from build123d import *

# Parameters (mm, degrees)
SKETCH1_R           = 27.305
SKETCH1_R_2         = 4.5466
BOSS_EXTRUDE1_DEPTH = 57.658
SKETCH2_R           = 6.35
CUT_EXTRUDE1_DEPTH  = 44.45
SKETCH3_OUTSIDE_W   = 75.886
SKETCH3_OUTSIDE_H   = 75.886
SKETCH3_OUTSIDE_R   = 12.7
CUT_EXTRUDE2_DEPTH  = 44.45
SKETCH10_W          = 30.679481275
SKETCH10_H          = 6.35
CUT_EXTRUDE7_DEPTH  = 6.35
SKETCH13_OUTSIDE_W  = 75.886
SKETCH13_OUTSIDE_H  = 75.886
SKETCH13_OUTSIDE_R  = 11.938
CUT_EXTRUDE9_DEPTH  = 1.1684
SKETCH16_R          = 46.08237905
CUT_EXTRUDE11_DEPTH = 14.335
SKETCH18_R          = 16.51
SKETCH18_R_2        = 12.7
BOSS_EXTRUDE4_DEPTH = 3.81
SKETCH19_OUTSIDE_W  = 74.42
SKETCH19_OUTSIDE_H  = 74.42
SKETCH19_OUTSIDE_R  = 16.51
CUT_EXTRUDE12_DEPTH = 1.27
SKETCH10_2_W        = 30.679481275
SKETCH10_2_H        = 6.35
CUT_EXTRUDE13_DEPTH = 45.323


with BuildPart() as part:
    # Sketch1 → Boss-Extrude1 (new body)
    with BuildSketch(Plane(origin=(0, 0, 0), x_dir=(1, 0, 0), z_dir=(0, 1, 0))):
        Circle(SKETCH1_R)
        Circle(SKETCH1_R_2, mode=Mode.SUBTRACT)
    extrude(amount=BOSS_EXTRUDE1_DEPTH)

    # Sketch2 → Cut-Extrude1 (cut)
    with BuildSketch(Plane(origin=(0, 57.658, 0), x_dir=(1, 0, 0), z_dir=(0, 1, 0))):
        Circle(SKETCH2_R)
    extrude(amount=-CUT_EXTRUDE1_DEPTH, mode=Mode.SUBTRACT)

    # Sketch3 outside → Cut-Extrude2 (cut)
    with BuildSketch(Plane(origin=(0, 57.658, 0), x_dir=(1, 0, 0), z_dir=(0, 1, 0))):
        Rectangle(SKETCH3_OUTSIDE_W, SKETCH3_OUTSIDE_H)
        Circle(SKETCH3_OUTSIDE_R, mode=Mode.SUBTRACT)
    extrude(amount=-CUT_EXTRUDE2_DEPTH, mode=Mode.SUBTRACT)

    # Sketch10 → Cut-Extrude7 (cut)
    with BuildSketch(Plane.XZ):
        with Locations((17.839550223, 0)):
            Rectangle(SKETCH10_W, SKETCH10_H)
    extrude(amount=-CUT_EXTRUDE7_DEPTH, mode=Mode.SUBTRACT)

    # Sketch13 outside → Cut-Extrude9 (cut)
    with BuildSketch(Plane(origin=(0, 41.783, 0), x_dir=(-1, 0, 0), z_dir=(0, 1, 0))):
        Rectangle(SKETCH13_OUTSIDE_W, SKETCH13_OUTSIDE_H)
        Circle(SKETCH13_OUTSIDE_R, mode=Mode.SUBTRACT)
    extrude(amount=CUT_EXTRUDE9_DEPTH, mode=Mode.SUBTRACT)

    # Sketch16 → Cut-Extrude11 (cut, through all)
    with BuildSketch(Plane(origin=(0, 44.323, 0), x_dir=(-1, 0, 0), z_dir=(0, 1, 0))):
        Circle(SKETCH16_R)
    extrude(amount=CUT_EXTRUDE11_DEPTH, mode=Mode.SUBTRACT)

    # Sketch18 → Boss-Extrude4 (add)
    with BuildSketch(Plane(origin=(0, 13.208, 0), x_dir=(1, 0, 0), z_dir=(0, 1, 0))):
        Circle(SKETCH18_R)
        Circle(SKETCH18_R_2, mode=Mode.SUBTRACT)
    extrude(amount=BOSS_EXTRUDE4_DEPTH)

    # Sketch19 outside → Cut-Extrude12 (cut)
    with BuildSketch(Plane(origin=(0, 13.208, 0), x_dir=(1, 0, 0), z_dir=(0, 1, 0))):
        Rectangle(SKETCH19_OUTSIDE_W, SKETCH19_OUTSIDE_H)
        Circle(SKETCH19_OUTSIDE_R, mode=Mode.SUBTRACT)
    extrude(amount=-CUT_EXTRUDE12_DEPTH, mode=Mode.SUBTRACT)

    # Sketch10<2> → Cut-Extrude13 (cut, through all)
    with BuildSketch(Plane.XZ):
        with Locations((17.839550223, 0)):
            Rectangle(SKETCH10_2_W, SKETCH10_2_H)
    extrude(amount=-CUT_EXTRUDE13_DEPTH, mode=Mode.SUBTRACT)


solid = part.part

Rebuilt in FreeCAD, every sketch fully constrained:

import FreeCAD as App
import Part
import Sketcher
Q = App.Units.Quantity


def add_polygon(sketch, points):
    """Adds a closed chain of lines whose ends are joined by coincident constraints."""
    first, n = sketch.GeometryCount, len(points)
    for a, b in zip(points, points[1:] + points[:1]):
        sketch.addGeometry(Part.LineSegment(App.Vector(*a, 0), App.Vector(*b, 0)), False)
    for i in range(n):
        sketch.addConstraint(Sketcher.Constraint("Coincident", first + i, 2, first + (i + 1) % n, 1))

doc = App.newDocument("Part")
params = doc.addObject("Spreadsheet::Sheet", "Params")
for row, (alias, value) in enumerate([
    ("sketch1_diameter", "2.15 in"),
    ("sketch1_diameter2", "0.358 in"),
    ("pad1_length", "2.27 in"),
    ("sketch2_diameter", "0.5 in"),
    ("pocket1_length", "1.75 in"),
    ("sketch3_diameter", "1 in"),
    ("pocket2_length", "1.75 in"),
    ("sketch4_height", "0.25 in"),
    ("pocket3_length", "0.25 in"),
    ("sketch5_diameter", "0.94 in"),
    ("pocket4_length", "0.046 in"),
    ("sketch7_diameter", "1 in"),
    ("sketch7_diameter2", "1.3 in"),
    ("pad2_length", "0.15 in"),
    ("sketch8_diameter", "1.3 in"),
    ("pocket6_length", "0.05 in"),
    ("sketch9_height", "0.25 in"),
], start=1):
    params.set(f"A{row}", alias)
    params.set(f"B{row}", "=" + value)
    params.setAlias(f"B{row}", alias)

body = doc.addObject("PartDesign::Body", "Body")

# Sketch on XZ plane
sketch1 = body.newObject("Sketcher::SketchObject", "Sketch")
sketch1.AttachmentSupport = (doc.getObject("XZ_Plane"), [""])
sketch1.MapMode = "FlatFace"
sketch1.addGeometry(Part.Circle(App.Vector(0, 0, 0), App.Vector(0, 0, 1), 27.305), False)
sketch1.addGeometry(Part.Circle(App.Vector(0, 0, 0), App.Vector(0, 0, 1), 4.5466), False)
sketch1.addConstraint(Sketcher.Constraint("Coincident", 0, 3, -1, 1))
sketch1.addConstraint(Sketcher.Constraint("Coincident", 1, 3, -1, 1))
sketch1.addConstraint(Sketcher.Constraint("Diameter", 0, Q("2.15 in")))
sketch1.addConstraint(Sketcher.Constraint("Diameter", 1, Q("0.358 in")))
sketch1.setExpression("Constraints[2]", "Params.sketch1_diameter")
sketch1.setExpression("Constraints[3]", "Params.sketch1_diameter2")
pad1 = body.newObject("PartDesign::Pad", "Pad")
pad1.Profile = sketch1
pad1.setExpression("Length", "Params.pad1_length")
pad1.Reversed = True

# Sketch on XZ plane
sketch2 = body.newObject("Sketcher::SketchObject", "Sketch001")
sketch2.AttachmentSupport = (doc.getObject("XZ_Plane"), [""])
sketch2.MapMode = "FlatFace"
sketch2.AttachmentOffset = App.Placement(App.Vector(0, 0, -2.27 * 25.4), App.Rotation())
sketch2.addGeometry(Part.Circle(App.Vector(0, 0, 0), App.Vector(0, 0, 1), 6.35), False)
sketch2.addConstraint(Sketcher.Constraint("Coincident", 0, 3, -1, 1))
sketch2.addConstraint(Sketcher.Constraint("Diameter", 0, Q("0.5 in")))
sketch2.setExpression("Constraints[1]", "Params.sketch2_diameter")
pocket1 = body.newObject("PartDesign::Pocket", "Pocket")
pocket1.Profile = sketch2
pocket1.setExpression("Length", "Params.pocket1_length")
pocket1.Reversed = True

# Sketch on XZ plane
sketch3 = body.newObject("Sketcher::SketchObject", "Sketch002")
sketch3.AttachmentSupport = (doc.getObject("XZ_Plane"), [""])
sketch3.MapMode = "FlatFace"
sketch3.AttachmentOffset = App.Placement(App.Vector(0, 0, -2.27 * 25.4), App.Rotation())
add_polygon(sketch3, [(-37.943, -37.943), (-37.943, 37.943), (37.943, 37.943), (37.943, -37.943)])  # lines 0-3
sketch3.addGeometry(Part.Circle(App.Vector(0, 0, 0), App.Vector(0, 0, 1), 12.7), False)  # 4
sketch3.addConstraint(Sketcher.Constraint("Vertical", 0))
sketch3.addConstraint(Sketcher.Constraint("Horizontal", 1))
sketch3.addConstraint(Sketcher.Constraint("Vertical", 2))
sketch3.addConstraint(Sketcher.Constraint("Horizontal", 3))
sketch3.addConstraint(Sketcher.Constraint("Coincident", 4, 3, -1, 1))
sketch3.addConstraint(Sketcher.Constraint("Symmetric", 0, 2, 2, 2, -1, 1))
sketch3.addConstraint(Sketcher.Constraint("Equal", 3, 0))
sketch3.addConstraint(Sketcher.Constraint("Diameter", 4, Q("1 in")))
sketch3.addConstraint(Sketcher.Constraint("DistanceX", 1, 1, 1, 2, Q("75.886 mm")))
sketch3.setExpression("Constraints[11]", "Params.sketch3_diameter")
pocket2 = body.newObject("PartDesign::Pocket", "Pocket001")
pocket2.Profile = sketch3
pocket2.setExpression("Length", "Params.pocket2_length")
pocket2.Reversed = True

# Sketch on XZ plane
sketch4 = body.newObject("Sketcher::SketchObject", "Sketch003")
sketch4.AttachmentSupport = (doc.getObject("XZ_Plane"), [""])
sketch4.MapMode = "FlatFace"
add_polygon(sketch4, [(2.49981, 3.175), (2.49981, -3.175), (33.179291, -3.175), (33.179291, 3.175)])  # lines 0-3
sketch4.addConstraint(Sketcher.Constraint("Vertical", 0))
sketch4.addConstraint(Sketcher.Constraint("Horizontal", 1))
sketch4.addConstraint(Sketcher.Constraint("Vertical", 2))
sketch4.addConstraint(Sketcher.Constraint("Horizontal", 3))
sketch4.addConstraint(Sketcher.Constraint("DistanceY", 0, 2, 0, 1, Q("0.25 in")))
sketch4.addConstraint(Sketcher.Constraint("DistanceY", 0, 2, -1, 1, Q("0.125 in")))
sketch4.addConstraint(Sketcher.Constraint("DistanceX", 1, 1, 1, 2, Q("30.679481 mm")))
sketch4.addConstraint(Sketcher.Constraint("DistanceX", -1, 1, 0, 2, Q("2.49981 mm")))
sketch4.setExpression("Constraints[8]", "Params.sketch4_height")
pocket3 = body.newObject("PartDesign::Pocket", "Pocket002")
pocket3.Profile = sketch4
pocket3.setExpression("Length", "Params.pocket3_length")

# Sketch on XZ plane
sketch5 = body.newObject("Sketcher::SketchObject", "Sketch004")
sketch5.AttachmentSupport = (doc.getObject("XZ_Plane"), [""])
sketch5.MapMode = "FlatFace"
sketch5.AttachmentOffset = App.Placement(App.Vector(0, 0, -1.645 * 25.4), App.Rotation())
add_polygon(sketch5, [(37.943, 37.943), (37.943, -37.943), (-37.943, -37.943), (-37.943, 37.943)])  # lines 0-3
sketch5.addGeometry(Part.Circle(App.Vector(0, 0, 0), App.Vector(0, 0, 1), 11.938), False)  # 4
sketch5.addConstraint(Sketcher.Constraint("Vertical", 0))
sketch5.addConstraint(Sketcher.Constraint("Horizontal", 1))
sketch5.addConstraint(Sketcher.Constraint("Vertical", 2))
sketch5.addConstraint(Sketcher.Constraint("Horizontal", 3))
sketch5.addConstraint(Sketcher.Constraint("Coincident", 4, 3, -1, 1))
sketch5.addConstraint(Sketcher.Constraint("Symmetric", 0, 2, 2, 2, -1, 1))
sketch5.addConstraint(Sketcher.Constraint("Equal", 3, 0))
sketch5.addConstraint(Sketcher.Constraint("Diameter", 4, Q("0.94 in")))
sketch5.addConstraint(Sketcher.Constraint("DistanceX", 1, 2, 1, 1, Q("75.886 mm")))
sketch5.setExpression("Constraints[11]", "Params.sketch5_diameter")
pocket4 = body.newObject("PartDesign::Pocket", "Pocket003")
pocket4.Profile = sketch5
pocket4.setExpression("Length", "Params.pocket4_length")

# Sketch on XZ plane
sketch6 = body.newObject("Sketcher::SketchObject", "Sketch005")
sketch6.AttachmentSupport = (doc.getObject("XZ_Plane"), [""])
sketch6.MapMode = "FlatFace"
sketch6.AttachmentOffset = App.Placement(App.Vector(0, 0, -1.745 * 25.4), App.Rotation())
sketch6.addGeometry(Part.Circle(App.Vector(0, 0, 0), App.Vector(0, 0, 1), 46.082379), False)
sketch6.addConstraint(Sketcher.Constraint("Coincident", 0, 3, -1, 1))
sketch6.addConstraint(Sketcher.Constraint("Diameter", 0, Q("92.164758 mm")))
pocket5 = body.newObject("PartDesign::Pocket", "Pocket004")
pocket5.Profile = sketch6
pocket5.Type = "ThroughAll"

# Sketch on XZ plane
sketch7 = body.newObject("Sketcher::SketchObject", "Sketch006")
sketch7.AttachmentSupport = (doc.getObject("XZ_Plane"), [""])
sketch7.MapMode = "FlatFace"
sketch7.AttachmentOffset = App.Placement(App.Vector(0, 0, -0.52 * 25.4), App.Rotation())
sketch7.addGeometry(Part.Circle(App.Vector(0, 0, 0), App.Vector(0, 0, 1), 16.51), False)
sketch7.addGeometry(Part.Circle(App.Vector(0, 0, 0), App.Vector(0, 0, 1), 12.7), False)
sketch7.addConstraint(Sketcher.Constraint("Coincident", 0, 3, -1, 1))
sketch7.addConstraint(Sketcher.Constraint("Coincident", 1, 3, -1, 1))
sketch7.addConstraint(Sketcher.Constraint("Diameter", 1, Q("1 in")))
sketch7.addConstraint(Sketcher.Constraint("Diameter", 0, Q("1.3 in")))
sketch7.setExpression("Constraints[2]", "Params.sketch7_diameter")
sketch7.setExpression("Constraints[3]", "Params.sketch7_diameter2")
pad2 = body.newObject("PartDesign::Pad", "Pad001")
pad2.Profile = sketch7
pad2.setExpression("Length", "Params.pad2_length")
pad2.Reversed = True

# Sketch on XZ plane
sketch8 = body.newObject("Sketcher::SketchObject", "Sketch007")
sketch8.AttachmentSupport = (doc.getObject("XZ_Plane"), [""])
sketch8.MapMode = "FlatFace"
sketch8.AttachmentOffset = App.Placement(App.Vector(0, 0, -0.52 * 25.4), App.Rotation())
add_polygon(sketch8, [(-37.21, -37.21), (-37.21, 37.21), (37.21, 37.21), (37.21, -37.21)])  # lines 0-3
sketch8.addGeometry(Part.Circle(App.Vector(0, 0, 0), App.Vector(0, 0, 1), 16.51), False)  # 4
sketch8.addConstraint(Sketcher.Constraint("Vertical", 0))
sketch8.addConstraint(Sketcher.Constraint("Horizontal", 1))
sketch8.addConstraint(Sketcher.Constraint("Vertical", 2))
sketch8.addConstraint(Sketcher.Constraint("Horizontal", 3))
sketch8.addConstraint(Sketcher.Constraint("Coincident", 4, 3, -1, 1))
sketch8.addConstraint(Sketcher.Constraint("Symmetric", 0, 2, 2, 2, -1, 1))
sketch8.addConstraint(Sketcher.Constraint("Equal", 3, 0))
sketch8.addConstraint(Sketcher.Constraint("Diameter", 4, Q("1.3 in")))
sketch8.addConstraint(Sketcher.Constraint("DistanceX", 1, 1, 1, 2, Q("74.42 mm")))
sketch8.setExpression("Constraints[11]", "Params.sketch8_diameter")
pocket6 = body.newObject("PartDesign::Pocket", "Pocket005")
pocket6.Profile = sketch8
pocket6.setExpression("Length", "Params.pocket6_length")
pocket6.Reversed = True

# Sketch on XZ plane
sketch9 = body.newObject("Sketcher::SketchObject", "Sketch008")
sketch9.AttachmentSupport = (doc.getObject("XZ_Plane"), [""])
sketch9.MapMode = "FlatFace"
add_polygon(sketch9, [(2.49981, 3.175), (2.49981, -3.175), (33.179291, -3.175), (33.179291, 3.175)])  # lines 0-3
sketch9.addConstraint(Sketcher.Constraint("Vertical", 0))
sketch9.addConstraint(Sketcher.Constraint("Horizontal", 1))
sketch9.addConstraint(Sketcher.Constraint("Vertical", 2))
sketch9.addConstraint(Sketcher.Constraint("Horizontal", 3))
sketch9.addConstraint(Sketcher.Constraint("DistanceY", 0, 2, 0, 1, Q("0.25 in")))
sketch9.addConstraint(Sketcher.Constraint("DistanceY", 0, 2, -1, 1, Q("0.125 in")))
sketch9.addConstraint(Sketcher.Constraint("DistanceX", 1, 1, 1, 2, Q("30.679481 mm")))
sketch9.addConstraint(Sketcher.Constraint("DistanceX", -1, 1, 0, 2, Q("2.49981 mm")))
sketch9.setExpression("Constraints[8]", "Params.sketch9_height")
pocket7 = body.newObject("PartDesign::Pocket", "Pocket006")
pocket7.Profile = sketch9
pocket7.Type = "ThroughAll"

doc.recompute()
